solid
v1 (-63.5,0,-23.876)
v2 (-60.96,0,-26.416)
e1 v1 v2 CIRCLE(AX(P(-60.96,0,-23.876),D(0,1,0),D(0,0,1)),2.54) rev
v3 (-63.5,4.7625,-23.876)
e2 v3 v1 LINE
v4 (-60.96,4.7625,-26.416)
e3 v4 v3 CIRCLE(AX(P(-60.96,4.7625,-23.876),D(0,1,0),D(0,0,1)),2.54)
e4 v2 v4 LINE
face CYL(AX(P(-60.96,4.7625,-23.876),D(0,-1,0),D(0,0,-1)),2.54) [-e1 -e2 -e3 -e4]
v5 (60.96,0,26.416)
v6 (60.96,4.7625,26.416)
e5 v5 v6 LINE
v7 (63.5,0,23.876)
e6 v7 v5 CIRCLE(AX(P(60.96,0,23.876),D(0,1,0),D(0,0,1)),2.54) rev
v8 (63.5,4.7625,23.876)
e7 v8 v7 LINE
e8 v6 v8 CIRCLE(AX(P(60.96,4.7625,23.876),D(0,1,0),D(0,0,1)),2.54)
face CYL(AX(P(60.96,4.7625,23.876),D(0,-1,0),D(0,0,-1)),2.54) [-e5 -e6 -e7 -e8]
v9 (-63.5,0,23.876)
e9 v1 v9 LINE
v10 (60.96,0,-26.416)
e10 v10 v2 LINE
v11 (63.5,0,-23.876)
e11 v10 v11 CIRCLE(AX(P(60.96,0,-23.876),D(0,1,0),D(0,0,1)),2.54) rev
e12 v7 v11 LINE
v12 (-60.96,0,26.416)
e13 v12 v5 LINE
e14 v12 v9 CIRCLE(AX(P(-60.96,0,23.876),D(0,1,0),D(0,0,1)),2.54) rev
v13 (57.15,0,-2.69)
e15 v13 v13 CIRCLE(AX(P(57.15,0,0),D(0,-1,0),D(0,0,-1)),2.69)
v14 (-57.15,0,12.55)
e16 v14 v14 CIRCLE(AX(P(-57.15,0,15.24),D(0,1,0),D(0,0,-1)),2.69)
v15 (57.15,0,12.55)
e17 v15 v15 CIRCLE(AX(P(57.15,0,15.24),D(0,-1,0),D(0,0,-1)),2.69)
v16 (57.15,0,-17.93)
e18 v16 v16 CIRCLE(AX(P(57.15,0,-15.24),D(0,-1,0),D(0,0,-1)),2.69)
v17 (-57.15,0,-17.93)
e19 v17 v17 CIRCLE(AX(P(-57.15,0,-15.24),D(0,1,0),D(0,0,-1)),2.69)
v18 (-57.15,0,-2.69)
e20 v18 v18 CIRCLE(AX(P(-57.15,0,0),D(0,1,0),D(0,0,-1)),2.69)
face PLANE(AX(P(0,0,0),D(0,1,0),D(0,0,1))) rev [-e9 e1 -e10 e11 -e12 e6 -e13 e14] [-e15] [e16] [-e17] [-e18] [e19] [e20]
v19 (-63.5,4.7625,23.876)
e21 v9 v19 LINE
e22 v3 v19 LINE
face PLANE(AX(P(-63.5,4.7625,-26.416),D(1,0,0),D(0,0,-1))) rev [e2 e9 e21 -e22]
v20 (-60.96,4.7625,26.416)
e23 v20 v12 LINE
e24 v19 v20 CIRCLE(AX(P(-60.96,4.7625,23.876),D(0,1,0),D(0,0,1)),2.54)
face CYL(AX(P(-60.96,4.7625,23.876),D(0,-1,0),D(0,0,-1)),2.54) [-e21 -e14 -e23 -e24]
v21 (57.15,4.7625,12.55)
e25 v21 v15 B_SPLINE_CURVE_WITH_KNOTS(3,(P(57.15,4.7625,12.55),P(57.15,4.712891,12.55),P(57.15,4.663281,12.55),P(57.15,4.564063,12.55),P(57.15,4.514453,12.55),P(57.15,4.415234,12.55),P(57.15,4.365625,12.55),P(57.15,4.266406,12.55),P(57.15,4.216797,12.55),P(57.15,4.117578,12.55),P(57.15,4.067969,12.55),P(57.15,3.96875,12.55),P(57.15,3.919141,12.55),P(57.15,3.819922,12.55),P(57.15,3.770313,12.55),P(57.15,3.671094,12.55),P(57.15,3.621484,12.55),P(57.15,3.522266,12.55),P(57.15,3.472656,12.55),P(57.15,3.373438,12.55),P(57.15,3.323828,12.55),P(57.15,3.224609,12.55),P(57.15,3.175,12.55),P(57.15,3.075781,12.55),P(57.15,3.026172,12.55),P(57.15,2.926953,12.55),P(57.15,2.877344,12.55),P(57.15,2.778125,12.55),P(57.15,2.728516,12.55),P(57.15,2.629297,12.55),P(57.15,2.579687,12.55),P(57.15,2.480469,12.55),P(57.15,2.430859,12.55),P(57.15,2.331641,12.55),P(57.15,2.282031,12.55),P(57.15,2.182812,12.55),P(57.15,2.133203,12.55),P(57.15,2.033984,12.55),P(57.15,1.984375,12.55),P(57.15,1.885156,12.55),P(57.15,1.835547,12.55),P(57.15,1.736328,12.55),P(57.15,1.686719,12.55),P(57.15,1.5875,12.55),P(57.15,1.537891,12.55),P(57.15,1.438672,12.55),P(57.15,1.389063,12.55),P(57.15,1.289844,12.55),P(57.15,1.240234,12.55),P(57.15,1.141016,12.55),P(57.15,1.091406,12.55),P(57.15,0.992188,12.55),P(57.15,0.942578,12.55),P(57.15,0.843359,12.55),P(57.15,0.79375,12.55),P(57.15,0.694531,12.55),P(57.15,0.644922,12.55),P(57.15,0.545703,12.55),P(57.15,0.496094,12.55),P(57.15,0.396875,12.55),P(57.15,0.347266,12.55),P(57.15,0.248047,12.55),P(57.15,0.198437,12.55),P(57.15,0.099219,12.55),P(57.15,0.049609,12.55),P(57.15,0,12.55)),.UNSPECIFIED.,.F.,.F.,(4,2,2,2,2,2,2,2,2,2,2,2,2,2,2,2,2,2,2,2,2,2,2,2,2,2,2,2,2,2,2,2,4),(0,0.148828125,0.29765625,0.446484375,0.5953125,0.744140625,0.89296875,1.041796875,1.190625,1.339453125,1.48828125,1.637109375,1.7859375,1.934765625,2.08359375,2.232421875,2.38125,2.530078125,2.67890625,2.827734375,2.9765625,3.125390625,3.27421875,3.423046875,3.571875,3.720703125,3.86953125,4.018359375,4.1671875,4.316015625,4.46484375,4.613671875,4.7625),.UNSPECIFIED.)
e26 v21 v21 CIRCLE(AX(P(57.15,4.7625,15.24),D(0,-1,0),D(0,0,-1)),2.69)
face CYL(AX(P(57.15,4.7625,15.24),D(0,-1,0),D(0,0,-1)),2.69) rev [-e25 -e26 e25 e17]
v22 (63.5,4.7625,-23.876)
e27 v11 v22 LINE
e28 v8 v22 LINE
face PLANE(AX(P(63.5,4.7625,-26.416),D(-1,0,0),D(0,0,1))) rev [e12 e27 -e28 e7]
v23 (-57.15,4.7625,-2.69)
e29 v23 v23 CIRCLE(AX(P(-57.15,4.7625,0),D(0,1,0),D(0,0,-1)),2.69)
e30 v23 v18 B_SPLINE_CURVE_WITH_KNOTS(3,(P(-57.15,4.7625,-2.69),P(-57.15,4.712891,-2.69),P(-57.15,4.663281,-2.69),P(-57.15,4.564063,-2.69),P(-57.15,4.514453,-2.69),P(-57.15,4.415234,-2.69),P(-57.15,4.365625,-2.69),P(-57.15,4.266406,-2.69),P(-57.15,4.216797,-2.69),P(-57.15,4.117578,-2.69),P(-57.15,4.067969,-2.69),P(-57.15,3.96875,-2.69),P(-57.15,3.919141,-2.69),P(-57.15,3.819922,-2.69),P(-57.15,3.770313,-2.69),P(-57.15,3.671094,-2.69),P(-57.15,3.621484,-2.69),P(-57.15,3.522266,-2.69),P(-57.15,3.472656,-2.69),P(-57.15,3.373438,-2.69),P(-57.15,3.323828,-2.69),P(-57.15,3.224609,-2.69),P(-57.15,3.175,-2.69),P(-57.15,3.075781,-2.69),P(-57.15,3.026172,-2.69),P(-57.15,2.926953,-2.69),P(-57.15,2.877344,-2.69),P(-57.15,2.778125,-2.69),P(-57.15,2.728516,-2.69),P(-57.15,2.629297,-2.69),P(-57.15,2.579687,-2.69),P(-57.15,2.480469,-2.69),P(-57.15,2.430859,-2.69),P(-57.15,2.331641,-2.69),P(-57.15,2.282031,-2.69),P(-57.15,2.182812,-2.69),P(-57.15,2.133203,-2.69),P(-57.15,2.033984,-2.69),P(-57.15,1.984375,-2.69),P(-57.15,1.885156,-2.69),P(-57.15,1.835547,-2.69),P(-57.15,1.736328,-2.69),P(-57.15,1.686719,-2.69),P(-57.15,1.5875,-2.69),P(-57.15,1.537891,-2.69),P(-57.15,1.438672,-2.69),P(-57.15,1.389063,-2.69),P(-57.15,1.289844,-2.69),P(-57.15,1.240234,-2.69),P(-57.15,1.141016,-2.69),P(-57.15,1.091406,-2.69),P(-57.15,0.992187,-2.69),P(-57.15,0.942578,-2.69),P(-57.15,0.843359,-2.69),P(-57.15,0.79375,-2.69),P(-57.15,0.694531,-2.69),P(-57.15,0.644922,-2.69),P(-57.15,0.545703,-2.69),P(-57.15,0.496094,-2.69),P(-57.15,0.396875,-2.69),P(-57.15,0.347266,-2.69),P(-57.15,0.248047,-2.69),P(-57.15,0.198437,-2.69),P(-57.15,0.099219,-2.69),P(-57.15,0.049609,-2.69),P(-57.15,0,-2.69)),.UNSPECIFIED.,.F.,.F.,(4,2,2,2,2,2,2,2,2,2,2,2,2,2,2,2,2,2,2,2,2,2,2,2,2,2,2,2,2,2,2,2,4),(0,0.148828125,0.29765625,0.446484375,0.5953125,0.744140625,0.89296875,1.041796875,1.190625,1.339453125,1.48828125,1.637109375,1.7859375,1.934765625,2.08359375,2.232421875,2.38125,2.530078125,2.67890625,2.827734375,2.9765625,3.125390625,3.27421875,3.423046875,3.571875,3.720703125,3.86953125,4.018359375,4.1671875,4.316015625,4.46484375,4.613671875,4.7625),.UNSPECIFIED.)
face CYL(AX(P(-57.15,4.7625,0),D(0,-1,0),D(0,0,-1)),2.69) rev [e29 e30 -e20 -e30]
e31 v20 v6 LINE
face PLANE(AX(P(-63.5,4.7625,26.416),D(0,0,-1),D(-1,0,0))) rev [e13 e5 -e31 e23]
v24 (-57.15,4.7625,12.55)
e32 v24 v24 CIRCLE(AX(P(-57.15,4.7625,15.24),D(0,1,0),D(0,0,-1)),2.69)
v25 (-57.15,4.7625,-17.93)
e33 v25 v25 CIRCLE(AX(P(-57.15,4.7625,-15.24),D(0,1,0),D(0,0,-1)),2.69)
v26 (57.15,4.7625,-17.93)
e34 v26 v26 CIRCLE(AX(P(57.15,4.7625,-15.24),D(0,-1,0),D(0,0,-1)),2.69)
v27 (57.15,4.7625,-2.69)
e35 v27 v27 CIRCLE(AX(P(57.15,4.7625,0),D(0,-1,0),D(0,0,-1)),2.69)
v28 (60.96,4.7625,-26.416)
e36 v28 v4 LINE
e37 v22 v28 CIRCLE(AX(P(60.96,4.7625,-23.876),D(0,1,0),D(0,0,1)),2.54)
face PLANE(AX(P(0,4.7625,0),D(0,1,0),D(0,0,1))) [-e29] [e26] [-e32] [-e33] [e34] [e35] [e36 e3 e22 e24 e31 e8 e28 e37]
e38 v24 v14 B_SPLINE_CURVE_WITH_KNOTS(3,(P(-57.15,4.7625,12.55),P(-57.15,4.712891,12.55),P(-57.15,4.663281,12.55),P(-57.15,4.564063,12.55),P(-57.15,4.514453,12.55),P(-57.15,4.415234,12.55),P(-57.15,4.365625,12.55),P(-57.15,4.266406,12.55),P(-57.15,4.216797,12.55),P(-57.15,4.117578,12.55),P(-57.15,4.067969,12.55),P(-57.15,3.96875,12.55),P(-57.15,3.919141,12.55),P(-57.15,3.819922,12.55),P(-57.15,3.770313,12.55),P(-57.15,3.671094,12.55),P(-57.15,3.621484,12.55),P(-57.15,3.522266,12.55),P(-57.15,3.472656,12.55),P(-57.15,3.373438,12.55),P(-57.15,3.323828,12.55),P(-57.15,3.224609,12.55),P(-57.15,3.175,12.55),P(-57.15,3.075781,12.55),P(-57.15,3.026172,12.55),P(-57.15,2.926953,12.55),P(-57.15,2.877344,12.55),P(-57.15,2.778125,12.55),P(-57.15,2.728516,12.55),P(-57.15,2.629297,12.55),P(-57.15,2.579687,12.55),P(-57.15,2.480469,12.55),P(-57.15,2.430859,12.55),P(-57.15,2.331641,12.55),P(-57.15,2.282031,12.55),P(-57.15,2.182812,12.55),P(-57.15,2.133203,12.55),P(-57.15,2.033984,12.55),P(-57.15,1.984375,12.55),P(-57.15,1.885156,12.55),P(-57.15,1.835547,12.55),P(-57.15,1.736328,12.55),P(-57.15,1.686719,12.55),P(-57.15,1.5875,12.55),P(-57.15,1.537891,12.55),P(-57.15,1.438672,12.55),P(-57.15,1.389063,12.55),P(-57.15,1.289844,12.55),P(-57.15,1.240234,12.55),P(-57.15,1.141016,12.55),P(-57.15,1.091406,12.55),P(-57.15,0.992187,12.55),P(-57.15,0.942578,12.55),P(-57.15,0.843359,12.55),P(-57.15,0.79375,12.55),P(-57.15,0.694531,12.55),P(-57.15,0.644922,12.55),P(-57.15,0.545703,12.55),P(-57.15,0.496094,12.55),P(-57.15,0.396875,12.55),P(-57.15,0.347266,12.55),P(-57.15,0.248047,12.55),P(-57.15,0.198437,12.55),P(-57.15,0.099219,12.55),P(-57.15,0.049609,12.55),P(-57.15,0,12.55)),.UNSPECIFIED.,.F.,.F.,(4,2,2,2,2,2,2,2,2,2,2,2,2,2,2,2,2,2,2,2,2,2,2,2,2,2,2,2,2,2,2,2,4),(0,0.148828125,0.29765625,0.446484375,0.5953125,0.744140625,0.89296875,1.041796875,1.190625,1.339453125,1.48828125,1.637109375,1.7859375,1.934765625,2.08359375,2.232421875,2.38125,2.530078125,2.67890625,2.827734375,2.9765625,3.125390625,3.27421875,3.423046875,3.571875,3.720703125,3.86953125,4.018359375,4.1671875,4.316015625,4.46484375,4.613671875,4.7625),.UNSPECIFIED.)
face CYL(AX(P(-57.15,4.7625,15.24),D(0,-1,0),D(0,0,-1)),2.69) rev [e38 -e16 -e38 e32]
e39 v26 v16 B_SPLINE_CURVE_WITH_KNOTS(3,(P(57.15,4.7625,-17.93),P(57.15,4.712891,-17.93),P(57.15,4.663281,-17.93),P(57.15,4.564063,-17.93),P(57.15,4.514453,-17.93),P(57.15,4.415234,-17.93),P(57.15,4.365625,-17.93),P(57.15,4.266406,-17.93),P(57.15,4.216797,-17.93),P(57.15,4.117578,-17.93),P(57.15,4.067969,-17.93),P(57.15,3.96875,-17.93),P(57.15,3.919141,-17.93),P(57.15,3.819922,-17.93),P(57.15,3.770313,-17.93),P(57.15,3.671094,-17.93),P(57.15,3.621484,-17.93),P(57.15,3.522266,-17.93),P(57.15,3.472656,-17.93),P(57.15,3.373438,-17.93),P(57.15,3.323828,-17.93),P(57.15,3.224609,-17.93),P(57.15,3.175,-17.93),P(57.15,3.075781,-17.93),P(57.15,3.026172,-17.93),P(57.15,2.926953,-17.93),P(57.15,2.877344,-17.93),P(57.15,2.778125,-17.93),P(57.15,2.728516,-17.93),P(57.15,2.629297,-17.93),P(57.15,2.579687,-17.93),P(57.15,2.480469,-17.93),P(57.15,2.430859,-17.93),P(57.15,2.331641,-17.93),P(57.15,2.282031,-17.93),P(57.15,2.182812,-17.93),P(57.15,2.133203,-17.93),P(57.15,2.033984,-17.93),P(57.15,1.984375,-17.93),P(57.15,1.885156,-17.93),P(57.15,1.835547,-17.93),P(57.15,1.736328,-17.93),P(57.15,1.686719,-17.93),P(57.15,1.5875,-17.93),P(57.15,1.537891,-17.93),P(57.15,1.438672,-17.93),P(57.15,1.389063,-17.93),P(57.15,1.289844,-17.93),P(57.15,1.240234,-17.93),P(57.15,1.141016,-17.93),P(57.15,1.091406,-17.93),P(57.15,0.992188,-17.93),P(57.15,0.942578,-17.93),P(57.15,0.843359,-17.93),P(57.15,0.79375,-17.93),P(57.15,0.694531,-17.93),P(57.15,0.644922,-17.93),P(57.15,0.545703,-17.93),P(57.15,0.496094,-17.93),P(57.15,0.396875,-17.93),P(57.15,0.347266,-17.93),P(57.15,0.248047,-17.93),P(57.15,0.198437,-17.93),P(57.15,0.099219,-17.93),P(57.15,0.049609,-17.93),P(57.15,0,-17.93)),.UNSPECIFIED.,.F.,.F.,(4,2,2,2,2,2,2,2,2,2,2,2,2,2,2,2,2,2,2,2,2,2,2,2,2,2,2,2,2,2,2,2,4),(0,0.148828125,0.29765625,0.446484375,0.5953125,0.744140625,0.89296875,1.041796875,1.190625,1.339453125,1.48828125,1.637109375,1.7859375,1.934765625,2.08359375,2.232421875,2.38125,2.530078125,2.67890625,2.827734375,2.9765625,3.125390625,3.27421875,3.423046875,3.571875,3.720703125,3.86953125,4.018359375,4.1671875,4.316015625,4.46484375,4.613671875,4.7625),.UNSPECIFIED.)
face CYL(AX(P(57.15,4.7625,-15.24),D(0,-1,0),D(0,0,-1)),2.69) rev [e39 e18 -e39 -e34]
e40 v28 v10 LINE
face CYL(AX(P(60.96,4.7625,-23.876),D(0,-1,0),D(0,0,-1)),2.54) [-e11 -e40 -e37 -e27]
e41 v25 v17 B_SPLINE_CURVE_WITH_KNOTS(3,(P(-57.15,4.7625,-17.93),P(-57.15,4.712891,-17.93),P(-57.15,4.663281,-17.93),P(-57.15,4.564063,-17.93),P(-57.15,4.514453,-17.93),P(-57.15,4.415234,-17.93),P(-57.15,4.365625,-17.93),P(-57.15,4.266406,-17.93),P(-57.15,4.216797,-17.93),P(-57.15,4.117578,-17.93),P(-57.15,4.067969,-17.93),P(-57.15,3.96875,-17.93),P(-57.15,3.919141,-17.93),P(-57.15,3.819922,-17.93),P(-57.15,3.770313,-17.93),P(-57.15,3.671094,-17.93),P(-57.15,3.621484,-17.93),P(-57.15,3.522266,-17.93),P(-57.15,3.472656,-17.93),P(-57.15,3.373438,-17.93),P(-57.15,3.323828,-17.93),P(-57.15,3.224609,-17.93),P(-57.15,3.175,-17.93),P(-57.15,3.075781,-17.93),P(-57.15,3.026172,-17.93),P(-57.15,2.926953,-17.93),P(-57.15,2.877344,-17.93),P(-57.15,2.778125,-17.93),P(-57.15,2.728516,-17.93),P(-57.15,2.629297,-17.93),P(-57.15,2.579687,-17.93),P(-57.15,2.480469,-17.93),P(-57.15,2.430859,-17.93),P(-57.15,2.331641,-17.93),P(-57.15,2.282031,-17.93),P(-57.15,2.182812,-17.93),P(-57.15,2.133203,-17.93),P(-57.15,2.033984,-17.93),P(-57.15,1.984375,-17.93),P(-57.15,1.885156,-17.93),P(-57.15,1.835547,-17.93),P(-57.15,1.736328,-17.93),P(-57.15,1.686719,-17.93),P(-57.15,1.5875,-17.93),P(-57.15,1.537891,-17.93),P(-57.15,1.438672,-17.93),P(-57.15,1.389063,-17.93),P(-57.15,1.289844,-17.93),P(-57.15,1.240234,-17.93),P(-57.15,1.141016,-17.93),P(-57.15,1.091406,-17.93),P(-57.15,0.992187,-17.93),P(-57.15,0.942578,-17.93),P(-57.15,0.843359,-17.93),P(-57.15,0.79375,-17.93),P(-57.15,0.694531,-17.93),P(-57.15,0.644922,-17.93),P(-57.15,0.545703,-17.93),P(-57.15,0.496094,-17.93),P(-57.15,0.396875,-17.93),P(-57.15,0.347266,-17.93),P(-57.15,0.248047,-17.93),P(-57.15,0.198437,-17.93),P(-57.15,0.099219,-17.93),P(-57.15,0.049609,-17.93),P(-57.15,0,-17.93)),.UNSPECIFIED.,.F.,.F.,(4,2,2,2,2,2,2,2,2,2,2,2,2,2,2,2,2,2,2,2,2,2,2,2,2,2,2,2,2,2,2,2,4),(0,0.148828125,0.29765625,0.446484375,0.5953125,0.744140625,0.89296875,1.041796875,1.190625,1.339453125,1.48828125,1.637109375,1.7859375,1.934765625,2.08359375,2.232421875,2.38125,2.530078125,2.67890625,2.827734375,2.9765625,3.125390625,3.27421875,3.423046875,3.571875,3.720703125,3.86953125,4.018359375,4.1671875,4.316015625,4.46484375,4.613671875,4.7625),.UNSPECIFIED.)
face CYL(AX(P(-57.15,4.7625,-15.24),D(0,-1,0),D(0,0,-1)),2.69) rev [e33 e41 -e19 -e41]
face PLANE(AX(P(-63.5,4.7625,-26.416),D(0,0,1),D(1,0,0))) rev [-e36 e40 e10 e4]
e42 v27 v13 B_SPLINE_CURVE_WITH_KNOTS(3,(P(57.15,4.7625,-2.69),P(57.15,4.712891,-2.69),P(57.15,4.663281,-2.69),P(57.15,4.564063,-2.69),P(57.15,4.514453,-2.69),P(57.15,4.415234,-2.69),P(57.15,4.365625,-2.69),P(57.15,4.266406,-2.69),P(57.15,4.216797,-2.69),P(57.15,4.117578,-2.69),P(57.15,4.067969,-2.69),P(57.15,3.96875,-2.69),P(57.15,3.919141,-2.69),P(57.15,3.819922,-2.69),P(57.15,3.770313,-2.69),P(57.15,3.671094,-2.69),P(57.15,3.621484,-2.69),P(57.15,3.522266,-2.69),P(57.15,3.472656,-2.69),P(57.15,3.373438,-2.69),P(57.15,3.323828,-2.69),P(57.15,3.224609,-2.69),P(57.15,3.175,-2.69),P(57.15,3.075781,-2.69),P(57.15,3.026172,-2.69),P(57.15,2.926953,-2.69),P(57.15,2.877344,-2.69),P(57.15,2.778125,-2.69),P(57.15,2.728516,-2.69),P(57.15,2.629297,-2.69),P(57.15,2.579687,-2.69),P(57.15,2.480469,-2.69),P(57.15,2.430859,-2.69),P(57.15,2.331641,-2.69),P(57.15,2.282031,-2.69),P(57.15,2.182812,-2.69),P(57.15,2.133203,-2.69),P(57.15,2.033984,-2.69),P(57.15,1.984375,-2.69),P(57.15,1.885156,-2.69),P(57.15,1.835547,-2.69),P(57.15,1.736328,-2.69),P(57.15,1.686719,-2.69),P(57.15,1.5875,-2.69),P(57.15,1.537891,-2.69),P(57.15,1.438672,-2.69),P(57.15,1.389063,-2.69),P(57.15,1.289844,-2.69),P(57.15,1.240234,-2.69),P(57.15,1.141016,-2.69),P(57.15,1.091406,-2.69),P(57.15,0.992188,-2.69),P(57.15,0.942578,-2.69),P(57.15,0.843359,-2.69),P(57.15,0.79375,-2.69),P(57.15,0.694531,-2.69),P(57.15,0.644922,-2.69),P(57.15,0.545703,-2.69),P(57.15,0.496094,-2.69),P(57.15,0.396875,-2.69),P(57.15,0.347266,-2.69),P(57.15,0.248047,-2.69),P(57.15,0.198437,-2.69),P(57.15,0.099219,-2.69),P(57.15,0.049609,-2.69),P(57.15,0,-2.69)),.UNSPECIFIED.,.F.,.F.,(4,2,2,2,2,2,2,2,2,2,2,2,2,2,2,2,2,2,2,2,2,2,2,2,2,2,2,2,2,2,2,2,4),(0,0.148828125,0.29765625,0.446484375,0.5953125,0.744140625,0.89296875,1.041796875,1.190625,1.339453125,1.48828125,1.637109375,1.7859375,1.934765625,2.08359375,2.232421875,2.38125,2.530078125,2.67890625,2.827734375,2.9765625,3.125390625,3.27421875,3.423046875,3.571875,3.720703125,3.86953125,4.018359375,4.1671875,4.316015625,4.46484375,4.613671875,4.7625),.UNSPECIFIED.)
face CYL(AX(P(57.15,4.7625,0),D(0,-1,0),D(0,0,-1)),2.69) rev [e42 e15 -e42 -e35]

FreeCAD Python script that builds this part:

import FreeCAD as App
import Part
import Sketcher
from FreeCAD import Vector
Q = App.Units.Quantity


def edges_at(feature, points):
    """Names of the edges that pass closest to the given points."""
    edges = feature.Shape.Edges
    near = lambda p: min(range(len(edges)), key=lambda i: edges[i].distToShape(Part.Vertex(*p))[0])
    return sorted({f"Edge{near(p) + 1}" for p in points})


def add_polygon(sketch, points):
    """Adds a closed chain of lines whose ends are joined by coincident constraints."""
    first, n = sketch.GeometryCount, len(points)
    for a, b in zip(points, points[1:] + points[:1]):
        sketch.addGeometry(Part.LineSegment(App.Vector(*a, 0), App.Vector(*b, 0)), False)
    for i in range(n):
        sketch.addConstraint(Sketcher.Constraint("Coincident", first + i, 2, first + (i + 1) % n, 1))

doc = App.newDocument("Part")
body = doc.addObject("PartDesign::Body", "Body")

sketch1 = doc.addObject("Sketcher::SketchObject", "Sketch")
body.addObject(sketch1)
sketch1.AttachmentSupport = (doc.XZ_Plane, [""])
sketch1.MapMode = "FlatFace"
add_polygon(sketch1, [(-64, -26), (-64, 26), (64, 26), (64, -26)])
sketch1.addConstraint([
    Sketcher.Constraint("Vertical", 0),
    Sketcher.Constraint("Horizontal", 1),
    Sketcher.Constraint("Vertical", 2),
    Sketcher.Constraint("Horizontal", 3),
    Sketcher.Constraint("Symmetric", 0, 2, 2, 2, -1, 1),
    Sketcher.Constraint("DistanceX", 1, 1, 1, 2, Q("5 in")),
    Sketcher.Constraint("DistanceY", 0, 1, 0, 2, Q("2.08 in")),
])
pad1 = doc.addObject("PartDesign::Pad", "Pad")
body.addObject(pad1)
pad1.Profile = sketch1
pad1.Length = Q("0.1875 in")
pad1.Reversed = True
doc.recompute()

fillet = doc.addObject("PartDesign::Fillet", "Fillet")
body.addObject(fillet)
fillet.Base = (pad1, edges_at(pad1, [
    (63.5, 2.381, 26.416),
    (-63.5, 2.381, 26.416),
    (-63.5, 2.381, -26.416),
    (63.5, 2.381, -26.416),
]))
fillet.Radius = Q("0.1 in")

sketch2 = doc.addObject("Sketcher::SketchObject", "Sketch001")
body.addObject(sketch2)
sketch2.AttachmentSupport = (doc.XZ_Plane, [""])
sketch2.MapMode = "FlatFace"
sketch2.addGeometry([
    Part.Circle(Vector(57.1, -15.2, 0), Vector(0, 0, 1), 2.7),
    Part.Circle(Vector(57.1, 0, 0), Vector(0, 0, 1), 2.7),
    Part.Circle(Vector(57.1, 15.2, 0), Vector(0, 0, 1), 2.7),
], False)
sketch2.addConstraint([
    Sketcher.Constraint("Equal", 0, 1),
    Sketcher.Constraint("Equal", 1, 2),
    Sketcher.Constraint("Symmetric", 0, 3, 2, 3, -1),
    Sketcher.Constraint("PointOnObject", 1, 3, -1),
    Sketcher.Constraint("Vertical", 0, 3, 1, 3),
    Sketcher.Constraint("DistanceY", 0, 3, -1, 1, Q("0.6 in")),
    Sketcher.Constraint("Diameter", 0, 5.38),
    Sketcher.Constraint("DistanceX", -1, 1, 0, 3, Q("2.25 in")),
])
pocket1 = doc.addObject("PartDesign::Pocket", "Pocket")
body.addObject(pocket1)
pocket1.Profile = sketch2
pocket1.Type = "ThroughAll"
doc.recompute()

mirrored = doc.addObject("PartDesign::Mirrored", "Mirrored")
body.addObject(mirrored)
mirrored.Originals = [pocket1]
mirrored.MirrorPlane = (doc.YZ_Plane, [""])
body.Tip = mirrored

doc.recompute()
